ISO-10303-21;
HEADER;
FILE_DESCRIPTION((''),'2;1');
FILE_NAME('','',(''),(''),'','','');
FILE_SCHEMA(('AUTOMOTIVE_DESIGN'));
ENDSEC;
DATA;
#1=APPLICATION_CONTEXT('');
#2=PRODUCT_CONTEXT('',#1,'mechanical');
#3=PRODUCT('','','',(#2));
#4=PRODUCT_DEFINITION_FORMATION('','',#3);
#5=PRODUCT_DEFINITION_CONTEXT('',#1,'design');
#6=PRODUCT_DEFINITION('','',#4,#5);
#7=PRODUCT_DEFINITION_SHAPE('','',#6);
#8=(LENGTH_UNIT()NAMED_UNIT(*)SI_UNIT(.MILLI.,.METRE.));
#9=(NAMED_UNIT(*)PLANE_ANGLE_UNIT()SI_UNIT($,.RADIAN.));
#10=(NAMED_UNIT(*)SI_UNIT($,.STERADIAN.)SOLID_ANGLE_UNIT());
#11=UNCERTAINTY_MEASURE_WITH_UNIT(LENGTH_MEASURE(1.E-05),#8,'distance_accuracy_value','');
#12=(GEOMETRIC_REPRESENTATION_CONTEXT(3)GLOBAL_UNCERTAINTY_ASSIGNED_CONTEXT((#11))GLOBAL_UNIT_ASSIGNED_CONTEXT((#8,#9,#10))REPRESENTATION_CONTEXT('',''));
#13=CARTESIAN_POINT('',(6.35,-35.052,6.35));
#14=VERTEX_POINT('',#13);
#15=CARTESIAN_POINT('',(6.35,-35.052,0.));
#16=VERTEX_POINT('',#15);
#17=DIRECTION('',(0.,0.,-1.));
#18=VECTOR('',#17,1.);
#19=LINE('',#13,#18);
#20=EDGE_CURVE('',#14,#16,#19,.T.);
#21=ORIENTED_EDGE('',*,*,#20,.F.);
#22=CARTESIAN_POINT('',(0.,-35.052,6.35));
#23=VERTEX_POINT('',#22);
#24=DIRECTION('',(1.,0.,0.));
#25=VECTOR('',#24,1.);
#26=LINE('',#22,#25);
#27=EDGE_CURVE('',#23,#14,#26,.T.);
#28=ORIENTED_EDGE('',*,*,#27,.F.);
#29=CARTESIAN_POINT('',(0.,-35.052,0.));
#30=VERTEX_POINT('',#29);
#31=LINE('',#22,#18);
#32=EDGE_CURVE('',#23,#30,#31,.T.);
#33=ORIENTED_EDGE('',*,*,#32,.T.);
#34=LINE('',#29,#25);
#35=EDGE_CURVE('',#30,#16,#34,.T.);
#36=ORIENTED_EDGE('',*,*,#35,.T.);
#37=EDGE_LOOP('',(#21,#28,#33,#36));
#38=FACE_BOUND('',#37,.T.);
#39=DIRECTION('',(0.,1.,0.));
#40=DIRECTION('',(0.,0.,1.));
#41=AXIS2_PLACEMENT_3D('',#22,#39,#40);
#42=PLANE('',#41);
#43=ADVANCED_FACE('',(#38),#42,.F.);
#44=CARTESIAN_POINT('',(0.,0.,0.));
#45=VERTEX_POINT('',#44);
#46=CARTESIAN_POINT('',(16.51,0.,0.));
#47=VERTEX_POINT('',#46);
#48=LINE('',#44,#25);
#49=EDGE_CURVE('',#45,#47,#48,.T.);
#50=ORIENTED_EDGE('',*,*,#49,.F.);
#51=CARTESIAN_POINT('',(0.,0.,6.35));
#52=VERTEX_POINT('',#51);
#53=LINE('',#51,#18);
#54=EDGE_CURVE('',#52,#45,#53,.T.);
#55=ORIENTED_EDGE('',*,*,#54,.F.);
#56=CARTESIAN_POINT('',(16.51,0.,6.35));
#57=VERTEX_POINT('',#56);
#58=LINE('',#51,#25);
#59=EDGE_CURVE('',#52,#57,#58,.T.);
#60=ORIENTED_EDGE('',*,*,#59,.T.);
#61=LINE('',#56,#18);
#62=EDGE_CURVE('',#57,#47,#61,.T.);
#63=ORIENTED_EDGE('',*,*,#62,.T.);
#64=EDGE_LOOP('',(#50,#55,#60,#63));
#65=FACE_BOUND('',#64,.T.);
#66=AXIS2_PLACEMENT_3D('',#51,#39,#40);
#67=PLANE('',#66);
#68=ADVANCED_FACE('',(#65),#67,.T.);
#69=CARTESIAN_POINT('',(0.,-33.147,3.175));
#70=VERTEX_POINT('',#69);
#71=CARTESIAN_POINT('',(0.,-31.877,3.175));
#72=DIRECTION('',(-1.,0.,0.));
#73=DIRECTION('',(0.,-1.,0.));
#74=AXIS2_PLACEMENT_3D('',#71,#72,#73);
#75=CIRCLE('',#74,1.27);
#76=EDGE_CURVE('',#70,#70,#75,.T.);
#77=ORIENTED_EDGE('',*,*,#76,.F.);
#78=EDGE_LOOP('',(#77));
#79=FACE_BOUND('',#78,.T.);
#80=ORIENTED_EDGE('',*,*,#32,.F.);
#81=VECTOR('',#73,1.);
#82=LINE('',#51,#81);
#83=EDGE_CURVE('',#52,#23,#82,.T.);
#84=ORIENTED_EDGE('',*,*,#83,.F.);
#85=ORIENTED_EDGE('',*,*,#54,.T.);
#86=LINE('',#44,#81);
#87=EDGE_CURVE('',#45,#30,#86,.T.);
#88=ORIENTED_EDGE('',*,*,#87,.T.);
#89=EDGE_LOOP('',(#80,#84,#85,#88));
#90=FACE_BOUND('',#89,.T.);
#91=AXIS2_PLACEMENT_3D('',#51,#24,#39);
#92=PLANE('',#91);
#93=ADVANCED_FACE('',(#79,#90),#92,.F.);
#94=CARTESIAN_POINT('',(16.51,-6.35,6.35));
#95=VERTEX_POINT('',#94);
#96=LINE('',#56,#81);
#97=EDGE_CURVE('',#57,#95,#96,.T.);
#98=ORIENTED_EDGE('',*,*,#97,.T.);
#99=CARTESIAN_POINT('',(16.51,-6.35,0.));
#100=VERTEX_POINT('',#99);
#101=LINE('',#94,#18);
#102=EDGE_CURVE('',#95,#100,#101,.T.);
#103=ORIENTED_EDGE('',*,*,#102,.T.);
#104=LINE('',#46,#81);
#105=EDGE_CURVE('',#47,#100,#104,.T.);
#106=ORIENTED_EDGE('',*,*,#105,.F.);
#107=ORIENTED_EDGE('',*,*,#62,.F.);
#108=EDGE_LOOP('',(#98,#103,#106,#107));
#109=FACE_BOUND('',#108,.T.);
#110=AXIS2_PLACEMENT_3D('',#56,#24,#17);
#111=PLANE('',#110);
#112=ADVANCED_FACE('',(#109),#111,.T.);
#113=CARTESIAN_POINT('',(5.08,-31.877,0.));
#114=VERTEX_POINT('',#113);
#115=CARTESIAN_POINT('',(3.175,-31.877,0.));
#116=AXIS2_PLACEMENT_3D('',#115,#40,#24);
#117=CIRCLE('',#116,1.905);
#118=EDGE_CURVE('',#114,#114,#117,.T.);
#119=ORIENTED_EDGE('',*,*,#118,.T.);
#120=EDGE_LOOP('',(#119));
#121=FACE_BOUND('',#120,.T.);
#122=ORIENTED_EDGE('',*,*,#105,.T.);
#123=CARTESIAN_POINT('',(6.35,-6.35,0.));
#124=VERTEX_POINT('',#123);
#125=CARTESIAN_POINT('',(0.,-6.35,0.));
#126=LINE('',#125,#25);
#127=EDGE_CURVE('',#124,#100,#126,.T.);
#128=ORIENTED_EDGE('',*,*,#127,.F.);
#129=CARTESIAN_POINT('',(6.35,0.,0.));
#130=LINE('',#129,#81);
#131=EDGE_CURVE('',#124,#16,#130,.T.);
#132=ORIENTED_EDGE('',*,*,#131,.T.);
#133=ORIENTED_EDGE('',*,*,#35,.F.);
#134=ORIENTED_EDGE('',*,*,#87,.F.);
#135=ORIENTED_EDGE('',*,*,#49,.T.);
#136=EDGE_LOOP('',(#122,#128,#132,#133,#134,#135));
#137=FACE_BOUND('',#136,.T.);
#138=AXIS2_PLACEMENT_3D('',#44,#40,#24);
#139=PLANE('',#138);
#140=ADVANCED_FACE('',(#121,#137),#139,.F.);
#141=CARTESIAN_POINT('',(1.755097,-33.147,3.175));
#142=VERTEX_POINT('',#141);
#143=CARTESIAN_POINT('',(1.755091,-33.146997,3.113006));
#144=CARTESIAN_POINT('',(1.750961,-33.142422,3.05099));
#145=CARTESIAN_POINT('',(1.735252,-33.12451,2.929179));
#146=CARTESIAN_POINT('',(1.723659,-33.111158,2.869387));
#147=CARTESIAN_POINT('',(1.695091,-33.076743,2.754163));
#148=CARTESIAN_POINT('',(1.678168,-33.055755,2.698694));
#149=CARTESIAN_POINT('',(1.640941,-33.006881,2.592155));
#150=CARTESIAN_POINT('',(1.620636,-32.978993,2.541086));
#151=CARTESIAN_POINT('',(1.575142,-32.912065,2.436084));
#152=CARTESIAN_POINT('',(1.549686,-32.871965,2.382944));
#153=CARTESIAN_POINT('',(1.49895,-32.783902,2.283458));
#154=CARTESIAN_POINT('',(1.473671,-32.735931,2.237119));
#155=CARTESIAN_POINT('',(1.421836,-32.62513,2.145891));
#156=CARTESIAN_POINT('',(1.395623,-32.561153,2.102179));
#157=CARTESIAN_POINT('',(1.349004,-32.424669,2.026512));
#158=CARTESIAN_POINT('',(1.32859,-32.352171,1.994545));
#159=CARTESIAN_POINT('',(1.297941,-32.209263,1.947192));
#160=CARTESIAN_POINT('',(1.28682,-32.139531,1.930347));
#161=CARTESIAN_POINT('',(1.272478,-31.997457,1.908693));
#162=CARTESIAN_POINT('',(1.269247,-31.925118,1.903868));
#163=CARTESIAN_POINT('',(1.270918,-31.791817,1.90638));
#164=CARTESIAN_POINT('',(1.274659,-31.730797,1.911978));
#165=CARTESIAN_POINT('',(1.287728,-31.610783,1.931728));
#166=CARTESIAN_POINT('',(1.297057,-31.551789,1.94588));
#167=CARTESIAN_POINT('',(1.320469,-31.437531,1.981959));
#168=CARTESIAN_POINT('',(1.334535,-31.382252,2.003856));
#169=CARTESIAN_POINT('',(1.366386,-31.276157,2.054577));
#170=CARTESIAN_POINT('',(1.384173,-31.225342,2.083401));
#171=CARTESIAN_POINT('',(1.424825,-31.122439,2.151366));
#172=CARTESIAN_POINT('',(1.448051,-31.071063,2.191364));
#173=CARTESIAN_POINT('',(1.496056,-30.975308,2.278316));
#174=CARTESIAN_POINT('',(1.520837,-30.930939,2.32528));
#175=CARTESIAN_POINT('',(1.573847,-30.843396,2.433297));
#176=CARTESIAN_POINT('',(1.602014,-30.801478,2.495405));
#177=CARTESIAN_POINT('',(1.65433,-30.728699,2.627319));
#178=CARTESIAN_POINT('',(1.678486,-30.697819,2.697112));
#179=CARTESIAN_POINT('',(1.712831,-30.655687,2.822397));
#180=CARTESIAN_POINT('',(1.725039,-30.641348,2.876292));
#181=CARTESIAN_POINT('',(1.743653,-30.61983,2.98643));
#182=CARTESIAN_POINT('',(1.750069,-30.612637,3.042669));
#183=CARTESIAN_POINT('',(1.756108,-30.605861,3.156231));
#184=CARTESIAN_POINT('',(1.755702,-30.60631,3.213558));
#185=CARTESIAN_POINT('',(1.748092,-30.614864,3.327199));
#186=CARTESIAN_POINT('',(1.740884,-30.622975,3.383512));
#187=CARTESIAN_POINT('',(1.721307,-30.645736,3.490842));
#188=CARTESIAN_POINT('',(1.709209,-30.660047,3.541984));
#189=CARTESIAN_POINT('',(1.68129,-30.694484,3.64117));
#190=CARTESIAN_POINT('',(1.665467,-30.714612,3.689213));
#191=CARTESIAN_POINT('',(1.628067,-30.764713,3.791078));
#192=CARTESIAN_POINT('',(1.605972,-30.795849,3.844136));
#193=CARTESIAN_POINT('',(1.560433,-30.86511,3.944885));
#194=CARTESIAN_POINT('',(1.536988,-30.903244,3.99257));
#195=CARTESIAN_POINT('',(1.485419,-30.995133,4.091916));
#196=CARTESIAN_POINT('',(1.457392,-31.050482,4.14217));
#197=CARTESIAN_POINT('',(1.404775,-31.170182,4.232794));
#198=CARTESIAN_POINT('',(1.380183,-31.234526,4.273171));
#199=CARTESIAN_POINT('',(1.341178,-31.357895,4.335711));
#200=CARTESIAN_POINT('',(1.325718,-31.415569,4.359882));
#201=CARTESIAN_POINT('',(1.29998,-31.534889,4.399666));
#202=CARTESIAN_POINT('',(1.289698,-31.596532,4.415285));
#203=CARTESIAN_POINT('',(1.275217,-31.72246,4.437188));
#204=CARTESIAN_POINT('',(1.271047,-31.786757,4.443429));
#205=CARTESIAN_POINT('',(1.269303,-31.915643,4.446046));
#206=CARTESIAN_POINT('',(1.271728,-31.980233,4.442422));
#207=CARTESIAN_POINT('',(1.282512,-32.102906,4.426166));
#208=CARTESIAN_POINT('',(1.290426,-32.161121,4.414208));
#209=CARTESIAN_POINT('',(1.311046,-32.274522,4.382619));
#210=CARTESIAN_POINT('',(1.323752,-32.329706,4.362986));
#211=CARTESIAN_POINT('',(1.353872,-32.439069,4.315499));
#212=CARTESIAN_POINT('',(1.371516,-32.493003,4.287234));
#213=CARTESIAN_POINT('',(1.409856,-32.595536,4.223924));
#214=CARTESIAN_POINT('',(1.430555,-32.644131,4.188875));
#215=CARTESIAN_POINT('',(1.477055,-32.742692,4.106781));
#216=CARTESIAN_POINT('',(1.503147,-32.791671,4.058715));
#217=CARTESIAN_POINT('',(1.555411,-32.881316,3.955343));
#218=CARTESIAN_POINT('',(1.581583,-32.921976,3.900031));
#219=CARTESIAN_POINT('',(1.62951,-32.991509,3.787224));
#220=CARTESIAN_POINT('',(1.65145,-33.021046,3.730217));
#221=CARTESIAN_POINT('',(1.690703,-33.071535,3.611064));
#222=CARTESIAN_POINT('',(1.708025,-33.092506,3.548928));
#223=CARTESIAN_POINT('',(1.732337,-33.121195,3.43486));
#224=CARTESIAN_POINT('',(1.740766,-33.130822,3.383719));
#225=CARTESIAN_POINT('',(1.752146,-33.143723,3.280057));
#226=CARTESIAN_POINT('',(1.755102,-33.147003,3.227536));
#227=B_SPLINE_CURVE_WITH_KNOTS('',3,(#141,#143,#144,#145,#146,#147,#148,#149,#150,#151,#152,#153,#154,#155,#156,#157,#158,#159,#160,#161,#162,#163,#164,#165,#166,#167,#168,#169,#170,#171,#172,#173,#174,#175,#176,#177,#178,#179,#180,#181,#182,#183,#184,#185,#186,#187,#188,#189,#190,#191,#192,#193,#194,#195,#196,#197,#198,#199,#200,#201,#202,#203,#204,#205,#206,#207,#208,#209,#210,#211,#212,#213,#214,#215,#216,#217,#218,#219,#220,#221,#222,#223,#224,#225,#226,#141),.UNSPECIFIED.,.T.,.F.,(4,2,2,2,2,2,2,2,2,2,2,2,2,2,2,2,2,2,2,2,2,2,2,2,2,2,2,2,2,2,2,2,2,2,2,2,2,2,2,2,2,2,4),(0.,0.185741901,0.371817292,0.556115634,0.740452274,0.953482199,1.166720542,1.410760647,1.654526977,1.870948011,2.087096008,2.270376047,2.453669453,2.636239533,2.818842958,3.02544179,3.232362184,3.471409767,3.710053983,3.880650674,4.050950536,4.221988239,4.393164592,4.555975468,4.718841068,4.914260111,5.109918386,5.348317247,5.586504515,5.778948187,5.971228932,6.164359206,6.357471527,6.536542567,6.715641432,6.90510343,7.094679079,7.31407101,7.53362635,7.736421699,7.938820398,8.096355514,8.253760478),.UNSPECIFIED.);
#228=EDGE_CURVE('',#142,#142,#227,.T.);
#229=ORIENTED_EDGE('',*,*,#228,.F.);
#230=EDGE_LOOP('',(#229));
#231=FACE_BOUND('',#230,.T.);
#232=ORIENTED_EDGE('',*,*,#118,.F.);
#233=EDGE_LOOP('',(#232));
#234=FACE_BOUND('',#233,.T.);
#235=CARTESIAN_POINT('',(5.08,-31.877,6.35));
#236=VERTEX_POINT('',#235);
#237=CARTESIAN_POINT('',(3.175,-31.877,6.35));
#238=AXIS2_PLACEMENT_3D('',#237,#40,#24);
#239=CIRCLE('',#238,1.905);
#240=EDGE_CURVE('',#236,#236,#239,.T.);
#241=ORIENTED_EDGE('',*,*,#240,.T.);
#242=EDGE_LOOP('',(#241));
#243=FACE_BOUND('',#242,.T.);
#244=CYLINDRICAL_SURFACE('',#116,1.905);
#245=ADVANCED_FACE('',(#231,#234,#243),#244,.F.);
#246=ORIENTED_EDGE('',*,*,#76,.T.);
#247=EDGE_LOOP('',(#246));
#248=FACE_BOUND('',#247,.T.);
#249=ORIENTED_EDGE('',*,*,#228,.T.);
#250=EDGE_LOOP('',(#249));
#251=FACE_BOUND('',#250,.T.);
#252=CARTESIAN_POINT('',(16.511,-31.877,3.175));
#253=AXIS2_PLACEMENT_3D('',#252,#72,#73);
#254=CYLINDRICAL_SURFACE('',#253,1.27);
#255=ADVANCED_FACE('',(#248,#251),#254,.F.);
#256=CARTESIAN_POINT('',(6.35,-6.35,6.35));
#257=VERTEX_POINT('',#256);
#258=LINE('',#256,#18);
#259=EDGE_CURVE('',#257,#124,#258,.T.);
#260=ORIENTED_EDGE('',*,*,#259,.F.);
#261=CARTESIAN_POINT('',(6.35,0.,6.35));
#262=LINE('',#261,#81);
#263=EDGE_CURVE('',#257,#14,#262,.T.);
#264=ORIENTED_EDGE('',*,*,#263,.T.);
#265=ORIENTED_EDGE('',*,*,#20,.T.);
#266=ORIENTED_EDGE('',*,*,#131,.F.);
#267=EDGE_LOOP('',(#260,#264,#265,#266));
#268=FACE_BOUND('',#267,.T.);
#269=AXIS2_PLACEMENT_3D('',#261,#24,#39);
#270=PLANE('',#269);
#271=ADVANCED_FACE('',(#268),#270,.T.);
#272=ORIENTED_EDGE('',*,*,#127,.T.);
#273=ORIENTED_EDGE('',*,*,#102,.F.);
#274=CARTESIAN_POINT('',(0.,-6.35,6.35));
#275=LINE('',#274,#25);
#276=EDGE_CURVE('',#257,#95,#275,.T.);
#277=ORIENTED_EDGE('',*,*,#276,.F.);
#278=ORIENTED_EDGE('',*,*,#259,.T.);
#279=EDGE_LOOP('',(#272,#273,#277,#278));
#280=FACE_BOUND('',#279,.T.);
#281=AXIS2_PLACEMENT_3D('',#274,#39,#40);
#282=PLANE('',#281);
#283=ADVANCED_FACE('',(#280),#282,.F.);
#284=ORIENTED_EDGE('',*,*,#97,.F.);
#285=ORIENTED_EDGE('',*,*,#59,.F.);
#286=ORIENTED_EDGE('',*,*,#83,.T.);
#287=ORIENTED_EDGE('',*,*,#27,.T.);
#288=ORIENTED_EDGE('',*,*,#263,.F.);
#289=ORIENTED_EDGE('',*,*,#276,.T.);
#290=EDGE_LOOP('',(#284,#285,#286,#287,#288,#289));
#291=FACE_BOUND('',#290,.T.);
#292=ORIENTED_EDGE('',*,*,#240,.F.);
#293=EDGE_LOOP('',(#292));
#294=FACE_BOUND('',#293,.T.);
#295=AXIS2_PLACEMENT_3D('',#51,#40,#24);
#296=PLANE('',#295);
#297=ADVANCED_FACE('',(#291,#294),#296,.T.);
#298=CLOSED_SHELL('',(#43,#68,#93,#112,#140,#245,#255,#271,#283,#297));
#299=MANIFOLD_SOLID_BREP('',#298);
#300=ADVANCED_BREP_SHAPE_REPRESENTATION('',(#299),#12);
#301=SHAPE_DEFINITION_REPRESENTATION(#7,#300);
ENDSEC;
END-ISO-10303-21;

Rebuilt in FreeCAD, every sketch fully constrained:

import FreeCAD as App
import Part
import Sketcher

V = App.Vector
Q = App.Units.Quantity

doc = App.newDocument("Part")
body = doc.addObject("PartDesign::Body", "Body")

# Sketch on XY plane
sketch1 = doc.addObject("Sketcher::SketchObject", "Sketch")
body.addObject(sketch1)
sketch1.AttachmentSupport = (doc.XY_Plane, [""])
sketch1.MapMode = "FlatFace"
sketch1.addGeometry([
    Part.LineSegment(V(0, 0, 0), V(0, -35, 0)),  # 0
    Part.LineSegment(V(0, -35, 0), V(6, -35, 0)),  # 1
    Part.LineSegment(V(6, -35, 0), V(6, -6, 0)),  # 2
    Part.LineSegment(V(6, -6, 0), V(17, -6, 0)),  # 3
    Part.LineSegment(V(17, -6, 0), V(17, 0, 0)),  # 4
    Part.LineSegment(V(17, 0, 0), V(0, 0, 0)),  # 5
], False)
sketch1.addConstraint([
    Sketcher.Constraint("Coincident", 0, 2, 1, 1),
    Sketcher.Constraint("Coincident", 1, 2, 2, 1),
    Sketcher.Constraint("Coincident", 2, 2, 3, 1),
    Sketcher.Constraint("Coincident", 3, 2, 4, 1),
    Sketcher.Constraint("Coincident", 4, 2, 5, 1),
    Sketcher.Constraint("Coincident", 5, 2, 0, 1),
    Sketcher.Constraint("Vertical", 0),
    Sketcher.Constraint("Horizontal", 1),
    Sketcher.Constraint("Vertical", 2),
    Sketcher.Constraint("Horizontal", 3),
    Sketcher.Constraint("Vertical", 4),
    Sketcher.Constraint("Horizontal", 5),
    Sketcher.Constraint("Coincident", 5, 2, -1, 1),
    Sketcher.Constraint("Equal", 1, 4),
    Sketcher.Constraint("DistanceX", 3, 1, 3, 2, Q("0.4 in")),
    Sketcher.Constraint("DistanceX", 1, 1, 1, 2, Q("0.25 in")),
    Sketcher.Constraint("DistanceY", 0, 2, 0, 1, Q("1.38 in")),
])
pad1 = doc.addObject("PartDesign::Pad", "Pad")
body.addObject(pad1)
pad1.Profile = sketch1
pad1.Length = Q("0.25 in")

# Sketch on XY plane
sketch2 = doc.addObject("Sketcher::SketchObject", "Sketch001")
body.addObject(sketch2)
sketch2.AttachmentSupport = (doc.XY_Plane, [""])
sketch2.MapMode = "FlatFace"
sketch2.AttachmentOffset = App.Placement(V(0, 0, 0.25 * 25.4), App.Rotation())
sketch2.addGeometry(Part.Circle(V(3.2, -31.9, 0), V(0, 0, 1), 1.9), False)
sketch2.addConstraint([
    Sketcher.Constraint("Diameter", 0, Q("0.15 in")),
    Sketcher.Constraint("DistanceX", -1, 1, 0, 3, Q("0.125 in")),
    Sketcher.Constraint("DistanceY", 0, 3, -1, 1, Q("1.255 in")),
])
pocket1 = doc.addObject("PartDesign::Pocket", "Pocket")
body.addObject(pocket1)
pocket1.Profile = sketch2
pocket1.Type = "ThroughAll"

# Sketch on YZ plane
sketch3 = doc.addObject("Sketcher::SketchObject", "Sketch002")
body.addObject(sketch3)
sketch3.AttachmentSupport = (doc.YZ_Plane, [""])
sketch3.MapMode = "FlatFace"
sketch3.addGeometry(Part.Circle(V(-31.9, 3.2, 0), V(0, 0, 1), 1.3), False)
sketch3.addConstraint([
    Sketcher.Constraint("Diameter", 0, Q("0.1 in")),
    Sketcher.Constraint("DistanceX", 0, 3, -1, 1, Q("1.255 in")),
    Sketcher.Constraint("DistanceY", -1, 1, 0, 3, Q("0.125 in")),
])
pocket2 = doc.addObject("PartDesign::Pocket", "Pocket001")
body.addObject(pocket2)
pocket2.Profile = sketch3
pocket2.Type = "UpToFirst"
pocket2.Reversed = True

doc.recompute()
